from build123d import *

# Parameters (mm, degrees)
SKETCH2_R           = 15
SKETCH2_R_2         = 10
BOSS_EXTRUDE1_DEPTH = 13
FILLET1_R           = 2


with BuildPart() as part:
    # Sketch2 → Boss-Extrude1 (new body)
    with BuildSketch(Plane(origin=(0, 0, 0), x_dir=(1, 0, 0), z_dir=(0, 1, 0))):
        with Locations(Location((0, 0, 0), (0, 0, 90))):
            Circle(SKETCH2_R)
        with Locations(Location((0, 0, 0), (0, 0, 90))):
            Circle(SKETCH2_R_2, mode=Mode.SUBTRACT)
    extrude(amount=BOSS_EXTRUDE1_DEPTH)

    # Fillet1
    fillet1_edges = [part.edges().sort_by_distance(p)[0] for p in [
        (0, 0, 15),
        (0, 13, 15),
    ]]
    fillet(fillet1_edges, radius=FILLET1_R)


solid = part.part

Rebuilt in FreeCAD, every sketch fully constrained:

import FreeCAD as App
import Part
import Sketcher
Q = App.Units.Quantity


def edges_at(feature, points):
    """Names of the edges that pass closest to the given points."""
    edges = feature.Shape.Edges
    near = lambda p: min(range(len(edges)), key=lambda i: edges[i].distToShape(Part.Vertex(*p))[0])
    return sorted({f"Edge{near(p) + 1}" for p in points})

doc = App.newDocument("Part")
body = doc.addObject("PartDesign::Body", "Body")

# Sketch on XZ plane
sketch1 = body.newObject("Sketcher::SketchObject", "Sketch")
sketch1.AttachmentSupport = (doc.getObject("XZ_Plane"), [""])
sketch1.MapMode = "FlatFace"
sketch1.addGeometry([
    Part.Circle(App.Vector(0, 0, 0), App.Vector(0, 0, 1), 15),
    Part.Circle(App.Vector(0, 0, 0), App.Vector(0, 0, 1), 10),
], False)
sketch1.addConstraint([
    Sketcher.Constraint("Coincident", 0, 3, -1, 1),
    Sketcher.Constraint("Coincident", 1, 3, -1, 1),
    Sketcher.Constraint("Diameter", 0, Q("30 mm")),
    Sketcher.Constraint("Diameter", 1, Q("20 mm")),
])
pad1 = body.newObject("PartDesign::Pad", "Pad")
pad1.Profile = sketch1
pad1.Length = 13
pad1.Reversed = True
doc.recompute()

fillet = body.newObject("PartDesign::Fillet", "Fillet")
fillet.Base = (pad1, edges_at(pad1, [(0, 0, 15), (0, 13, 15)]))
fillet.Radius = 2

doc.recompute()
